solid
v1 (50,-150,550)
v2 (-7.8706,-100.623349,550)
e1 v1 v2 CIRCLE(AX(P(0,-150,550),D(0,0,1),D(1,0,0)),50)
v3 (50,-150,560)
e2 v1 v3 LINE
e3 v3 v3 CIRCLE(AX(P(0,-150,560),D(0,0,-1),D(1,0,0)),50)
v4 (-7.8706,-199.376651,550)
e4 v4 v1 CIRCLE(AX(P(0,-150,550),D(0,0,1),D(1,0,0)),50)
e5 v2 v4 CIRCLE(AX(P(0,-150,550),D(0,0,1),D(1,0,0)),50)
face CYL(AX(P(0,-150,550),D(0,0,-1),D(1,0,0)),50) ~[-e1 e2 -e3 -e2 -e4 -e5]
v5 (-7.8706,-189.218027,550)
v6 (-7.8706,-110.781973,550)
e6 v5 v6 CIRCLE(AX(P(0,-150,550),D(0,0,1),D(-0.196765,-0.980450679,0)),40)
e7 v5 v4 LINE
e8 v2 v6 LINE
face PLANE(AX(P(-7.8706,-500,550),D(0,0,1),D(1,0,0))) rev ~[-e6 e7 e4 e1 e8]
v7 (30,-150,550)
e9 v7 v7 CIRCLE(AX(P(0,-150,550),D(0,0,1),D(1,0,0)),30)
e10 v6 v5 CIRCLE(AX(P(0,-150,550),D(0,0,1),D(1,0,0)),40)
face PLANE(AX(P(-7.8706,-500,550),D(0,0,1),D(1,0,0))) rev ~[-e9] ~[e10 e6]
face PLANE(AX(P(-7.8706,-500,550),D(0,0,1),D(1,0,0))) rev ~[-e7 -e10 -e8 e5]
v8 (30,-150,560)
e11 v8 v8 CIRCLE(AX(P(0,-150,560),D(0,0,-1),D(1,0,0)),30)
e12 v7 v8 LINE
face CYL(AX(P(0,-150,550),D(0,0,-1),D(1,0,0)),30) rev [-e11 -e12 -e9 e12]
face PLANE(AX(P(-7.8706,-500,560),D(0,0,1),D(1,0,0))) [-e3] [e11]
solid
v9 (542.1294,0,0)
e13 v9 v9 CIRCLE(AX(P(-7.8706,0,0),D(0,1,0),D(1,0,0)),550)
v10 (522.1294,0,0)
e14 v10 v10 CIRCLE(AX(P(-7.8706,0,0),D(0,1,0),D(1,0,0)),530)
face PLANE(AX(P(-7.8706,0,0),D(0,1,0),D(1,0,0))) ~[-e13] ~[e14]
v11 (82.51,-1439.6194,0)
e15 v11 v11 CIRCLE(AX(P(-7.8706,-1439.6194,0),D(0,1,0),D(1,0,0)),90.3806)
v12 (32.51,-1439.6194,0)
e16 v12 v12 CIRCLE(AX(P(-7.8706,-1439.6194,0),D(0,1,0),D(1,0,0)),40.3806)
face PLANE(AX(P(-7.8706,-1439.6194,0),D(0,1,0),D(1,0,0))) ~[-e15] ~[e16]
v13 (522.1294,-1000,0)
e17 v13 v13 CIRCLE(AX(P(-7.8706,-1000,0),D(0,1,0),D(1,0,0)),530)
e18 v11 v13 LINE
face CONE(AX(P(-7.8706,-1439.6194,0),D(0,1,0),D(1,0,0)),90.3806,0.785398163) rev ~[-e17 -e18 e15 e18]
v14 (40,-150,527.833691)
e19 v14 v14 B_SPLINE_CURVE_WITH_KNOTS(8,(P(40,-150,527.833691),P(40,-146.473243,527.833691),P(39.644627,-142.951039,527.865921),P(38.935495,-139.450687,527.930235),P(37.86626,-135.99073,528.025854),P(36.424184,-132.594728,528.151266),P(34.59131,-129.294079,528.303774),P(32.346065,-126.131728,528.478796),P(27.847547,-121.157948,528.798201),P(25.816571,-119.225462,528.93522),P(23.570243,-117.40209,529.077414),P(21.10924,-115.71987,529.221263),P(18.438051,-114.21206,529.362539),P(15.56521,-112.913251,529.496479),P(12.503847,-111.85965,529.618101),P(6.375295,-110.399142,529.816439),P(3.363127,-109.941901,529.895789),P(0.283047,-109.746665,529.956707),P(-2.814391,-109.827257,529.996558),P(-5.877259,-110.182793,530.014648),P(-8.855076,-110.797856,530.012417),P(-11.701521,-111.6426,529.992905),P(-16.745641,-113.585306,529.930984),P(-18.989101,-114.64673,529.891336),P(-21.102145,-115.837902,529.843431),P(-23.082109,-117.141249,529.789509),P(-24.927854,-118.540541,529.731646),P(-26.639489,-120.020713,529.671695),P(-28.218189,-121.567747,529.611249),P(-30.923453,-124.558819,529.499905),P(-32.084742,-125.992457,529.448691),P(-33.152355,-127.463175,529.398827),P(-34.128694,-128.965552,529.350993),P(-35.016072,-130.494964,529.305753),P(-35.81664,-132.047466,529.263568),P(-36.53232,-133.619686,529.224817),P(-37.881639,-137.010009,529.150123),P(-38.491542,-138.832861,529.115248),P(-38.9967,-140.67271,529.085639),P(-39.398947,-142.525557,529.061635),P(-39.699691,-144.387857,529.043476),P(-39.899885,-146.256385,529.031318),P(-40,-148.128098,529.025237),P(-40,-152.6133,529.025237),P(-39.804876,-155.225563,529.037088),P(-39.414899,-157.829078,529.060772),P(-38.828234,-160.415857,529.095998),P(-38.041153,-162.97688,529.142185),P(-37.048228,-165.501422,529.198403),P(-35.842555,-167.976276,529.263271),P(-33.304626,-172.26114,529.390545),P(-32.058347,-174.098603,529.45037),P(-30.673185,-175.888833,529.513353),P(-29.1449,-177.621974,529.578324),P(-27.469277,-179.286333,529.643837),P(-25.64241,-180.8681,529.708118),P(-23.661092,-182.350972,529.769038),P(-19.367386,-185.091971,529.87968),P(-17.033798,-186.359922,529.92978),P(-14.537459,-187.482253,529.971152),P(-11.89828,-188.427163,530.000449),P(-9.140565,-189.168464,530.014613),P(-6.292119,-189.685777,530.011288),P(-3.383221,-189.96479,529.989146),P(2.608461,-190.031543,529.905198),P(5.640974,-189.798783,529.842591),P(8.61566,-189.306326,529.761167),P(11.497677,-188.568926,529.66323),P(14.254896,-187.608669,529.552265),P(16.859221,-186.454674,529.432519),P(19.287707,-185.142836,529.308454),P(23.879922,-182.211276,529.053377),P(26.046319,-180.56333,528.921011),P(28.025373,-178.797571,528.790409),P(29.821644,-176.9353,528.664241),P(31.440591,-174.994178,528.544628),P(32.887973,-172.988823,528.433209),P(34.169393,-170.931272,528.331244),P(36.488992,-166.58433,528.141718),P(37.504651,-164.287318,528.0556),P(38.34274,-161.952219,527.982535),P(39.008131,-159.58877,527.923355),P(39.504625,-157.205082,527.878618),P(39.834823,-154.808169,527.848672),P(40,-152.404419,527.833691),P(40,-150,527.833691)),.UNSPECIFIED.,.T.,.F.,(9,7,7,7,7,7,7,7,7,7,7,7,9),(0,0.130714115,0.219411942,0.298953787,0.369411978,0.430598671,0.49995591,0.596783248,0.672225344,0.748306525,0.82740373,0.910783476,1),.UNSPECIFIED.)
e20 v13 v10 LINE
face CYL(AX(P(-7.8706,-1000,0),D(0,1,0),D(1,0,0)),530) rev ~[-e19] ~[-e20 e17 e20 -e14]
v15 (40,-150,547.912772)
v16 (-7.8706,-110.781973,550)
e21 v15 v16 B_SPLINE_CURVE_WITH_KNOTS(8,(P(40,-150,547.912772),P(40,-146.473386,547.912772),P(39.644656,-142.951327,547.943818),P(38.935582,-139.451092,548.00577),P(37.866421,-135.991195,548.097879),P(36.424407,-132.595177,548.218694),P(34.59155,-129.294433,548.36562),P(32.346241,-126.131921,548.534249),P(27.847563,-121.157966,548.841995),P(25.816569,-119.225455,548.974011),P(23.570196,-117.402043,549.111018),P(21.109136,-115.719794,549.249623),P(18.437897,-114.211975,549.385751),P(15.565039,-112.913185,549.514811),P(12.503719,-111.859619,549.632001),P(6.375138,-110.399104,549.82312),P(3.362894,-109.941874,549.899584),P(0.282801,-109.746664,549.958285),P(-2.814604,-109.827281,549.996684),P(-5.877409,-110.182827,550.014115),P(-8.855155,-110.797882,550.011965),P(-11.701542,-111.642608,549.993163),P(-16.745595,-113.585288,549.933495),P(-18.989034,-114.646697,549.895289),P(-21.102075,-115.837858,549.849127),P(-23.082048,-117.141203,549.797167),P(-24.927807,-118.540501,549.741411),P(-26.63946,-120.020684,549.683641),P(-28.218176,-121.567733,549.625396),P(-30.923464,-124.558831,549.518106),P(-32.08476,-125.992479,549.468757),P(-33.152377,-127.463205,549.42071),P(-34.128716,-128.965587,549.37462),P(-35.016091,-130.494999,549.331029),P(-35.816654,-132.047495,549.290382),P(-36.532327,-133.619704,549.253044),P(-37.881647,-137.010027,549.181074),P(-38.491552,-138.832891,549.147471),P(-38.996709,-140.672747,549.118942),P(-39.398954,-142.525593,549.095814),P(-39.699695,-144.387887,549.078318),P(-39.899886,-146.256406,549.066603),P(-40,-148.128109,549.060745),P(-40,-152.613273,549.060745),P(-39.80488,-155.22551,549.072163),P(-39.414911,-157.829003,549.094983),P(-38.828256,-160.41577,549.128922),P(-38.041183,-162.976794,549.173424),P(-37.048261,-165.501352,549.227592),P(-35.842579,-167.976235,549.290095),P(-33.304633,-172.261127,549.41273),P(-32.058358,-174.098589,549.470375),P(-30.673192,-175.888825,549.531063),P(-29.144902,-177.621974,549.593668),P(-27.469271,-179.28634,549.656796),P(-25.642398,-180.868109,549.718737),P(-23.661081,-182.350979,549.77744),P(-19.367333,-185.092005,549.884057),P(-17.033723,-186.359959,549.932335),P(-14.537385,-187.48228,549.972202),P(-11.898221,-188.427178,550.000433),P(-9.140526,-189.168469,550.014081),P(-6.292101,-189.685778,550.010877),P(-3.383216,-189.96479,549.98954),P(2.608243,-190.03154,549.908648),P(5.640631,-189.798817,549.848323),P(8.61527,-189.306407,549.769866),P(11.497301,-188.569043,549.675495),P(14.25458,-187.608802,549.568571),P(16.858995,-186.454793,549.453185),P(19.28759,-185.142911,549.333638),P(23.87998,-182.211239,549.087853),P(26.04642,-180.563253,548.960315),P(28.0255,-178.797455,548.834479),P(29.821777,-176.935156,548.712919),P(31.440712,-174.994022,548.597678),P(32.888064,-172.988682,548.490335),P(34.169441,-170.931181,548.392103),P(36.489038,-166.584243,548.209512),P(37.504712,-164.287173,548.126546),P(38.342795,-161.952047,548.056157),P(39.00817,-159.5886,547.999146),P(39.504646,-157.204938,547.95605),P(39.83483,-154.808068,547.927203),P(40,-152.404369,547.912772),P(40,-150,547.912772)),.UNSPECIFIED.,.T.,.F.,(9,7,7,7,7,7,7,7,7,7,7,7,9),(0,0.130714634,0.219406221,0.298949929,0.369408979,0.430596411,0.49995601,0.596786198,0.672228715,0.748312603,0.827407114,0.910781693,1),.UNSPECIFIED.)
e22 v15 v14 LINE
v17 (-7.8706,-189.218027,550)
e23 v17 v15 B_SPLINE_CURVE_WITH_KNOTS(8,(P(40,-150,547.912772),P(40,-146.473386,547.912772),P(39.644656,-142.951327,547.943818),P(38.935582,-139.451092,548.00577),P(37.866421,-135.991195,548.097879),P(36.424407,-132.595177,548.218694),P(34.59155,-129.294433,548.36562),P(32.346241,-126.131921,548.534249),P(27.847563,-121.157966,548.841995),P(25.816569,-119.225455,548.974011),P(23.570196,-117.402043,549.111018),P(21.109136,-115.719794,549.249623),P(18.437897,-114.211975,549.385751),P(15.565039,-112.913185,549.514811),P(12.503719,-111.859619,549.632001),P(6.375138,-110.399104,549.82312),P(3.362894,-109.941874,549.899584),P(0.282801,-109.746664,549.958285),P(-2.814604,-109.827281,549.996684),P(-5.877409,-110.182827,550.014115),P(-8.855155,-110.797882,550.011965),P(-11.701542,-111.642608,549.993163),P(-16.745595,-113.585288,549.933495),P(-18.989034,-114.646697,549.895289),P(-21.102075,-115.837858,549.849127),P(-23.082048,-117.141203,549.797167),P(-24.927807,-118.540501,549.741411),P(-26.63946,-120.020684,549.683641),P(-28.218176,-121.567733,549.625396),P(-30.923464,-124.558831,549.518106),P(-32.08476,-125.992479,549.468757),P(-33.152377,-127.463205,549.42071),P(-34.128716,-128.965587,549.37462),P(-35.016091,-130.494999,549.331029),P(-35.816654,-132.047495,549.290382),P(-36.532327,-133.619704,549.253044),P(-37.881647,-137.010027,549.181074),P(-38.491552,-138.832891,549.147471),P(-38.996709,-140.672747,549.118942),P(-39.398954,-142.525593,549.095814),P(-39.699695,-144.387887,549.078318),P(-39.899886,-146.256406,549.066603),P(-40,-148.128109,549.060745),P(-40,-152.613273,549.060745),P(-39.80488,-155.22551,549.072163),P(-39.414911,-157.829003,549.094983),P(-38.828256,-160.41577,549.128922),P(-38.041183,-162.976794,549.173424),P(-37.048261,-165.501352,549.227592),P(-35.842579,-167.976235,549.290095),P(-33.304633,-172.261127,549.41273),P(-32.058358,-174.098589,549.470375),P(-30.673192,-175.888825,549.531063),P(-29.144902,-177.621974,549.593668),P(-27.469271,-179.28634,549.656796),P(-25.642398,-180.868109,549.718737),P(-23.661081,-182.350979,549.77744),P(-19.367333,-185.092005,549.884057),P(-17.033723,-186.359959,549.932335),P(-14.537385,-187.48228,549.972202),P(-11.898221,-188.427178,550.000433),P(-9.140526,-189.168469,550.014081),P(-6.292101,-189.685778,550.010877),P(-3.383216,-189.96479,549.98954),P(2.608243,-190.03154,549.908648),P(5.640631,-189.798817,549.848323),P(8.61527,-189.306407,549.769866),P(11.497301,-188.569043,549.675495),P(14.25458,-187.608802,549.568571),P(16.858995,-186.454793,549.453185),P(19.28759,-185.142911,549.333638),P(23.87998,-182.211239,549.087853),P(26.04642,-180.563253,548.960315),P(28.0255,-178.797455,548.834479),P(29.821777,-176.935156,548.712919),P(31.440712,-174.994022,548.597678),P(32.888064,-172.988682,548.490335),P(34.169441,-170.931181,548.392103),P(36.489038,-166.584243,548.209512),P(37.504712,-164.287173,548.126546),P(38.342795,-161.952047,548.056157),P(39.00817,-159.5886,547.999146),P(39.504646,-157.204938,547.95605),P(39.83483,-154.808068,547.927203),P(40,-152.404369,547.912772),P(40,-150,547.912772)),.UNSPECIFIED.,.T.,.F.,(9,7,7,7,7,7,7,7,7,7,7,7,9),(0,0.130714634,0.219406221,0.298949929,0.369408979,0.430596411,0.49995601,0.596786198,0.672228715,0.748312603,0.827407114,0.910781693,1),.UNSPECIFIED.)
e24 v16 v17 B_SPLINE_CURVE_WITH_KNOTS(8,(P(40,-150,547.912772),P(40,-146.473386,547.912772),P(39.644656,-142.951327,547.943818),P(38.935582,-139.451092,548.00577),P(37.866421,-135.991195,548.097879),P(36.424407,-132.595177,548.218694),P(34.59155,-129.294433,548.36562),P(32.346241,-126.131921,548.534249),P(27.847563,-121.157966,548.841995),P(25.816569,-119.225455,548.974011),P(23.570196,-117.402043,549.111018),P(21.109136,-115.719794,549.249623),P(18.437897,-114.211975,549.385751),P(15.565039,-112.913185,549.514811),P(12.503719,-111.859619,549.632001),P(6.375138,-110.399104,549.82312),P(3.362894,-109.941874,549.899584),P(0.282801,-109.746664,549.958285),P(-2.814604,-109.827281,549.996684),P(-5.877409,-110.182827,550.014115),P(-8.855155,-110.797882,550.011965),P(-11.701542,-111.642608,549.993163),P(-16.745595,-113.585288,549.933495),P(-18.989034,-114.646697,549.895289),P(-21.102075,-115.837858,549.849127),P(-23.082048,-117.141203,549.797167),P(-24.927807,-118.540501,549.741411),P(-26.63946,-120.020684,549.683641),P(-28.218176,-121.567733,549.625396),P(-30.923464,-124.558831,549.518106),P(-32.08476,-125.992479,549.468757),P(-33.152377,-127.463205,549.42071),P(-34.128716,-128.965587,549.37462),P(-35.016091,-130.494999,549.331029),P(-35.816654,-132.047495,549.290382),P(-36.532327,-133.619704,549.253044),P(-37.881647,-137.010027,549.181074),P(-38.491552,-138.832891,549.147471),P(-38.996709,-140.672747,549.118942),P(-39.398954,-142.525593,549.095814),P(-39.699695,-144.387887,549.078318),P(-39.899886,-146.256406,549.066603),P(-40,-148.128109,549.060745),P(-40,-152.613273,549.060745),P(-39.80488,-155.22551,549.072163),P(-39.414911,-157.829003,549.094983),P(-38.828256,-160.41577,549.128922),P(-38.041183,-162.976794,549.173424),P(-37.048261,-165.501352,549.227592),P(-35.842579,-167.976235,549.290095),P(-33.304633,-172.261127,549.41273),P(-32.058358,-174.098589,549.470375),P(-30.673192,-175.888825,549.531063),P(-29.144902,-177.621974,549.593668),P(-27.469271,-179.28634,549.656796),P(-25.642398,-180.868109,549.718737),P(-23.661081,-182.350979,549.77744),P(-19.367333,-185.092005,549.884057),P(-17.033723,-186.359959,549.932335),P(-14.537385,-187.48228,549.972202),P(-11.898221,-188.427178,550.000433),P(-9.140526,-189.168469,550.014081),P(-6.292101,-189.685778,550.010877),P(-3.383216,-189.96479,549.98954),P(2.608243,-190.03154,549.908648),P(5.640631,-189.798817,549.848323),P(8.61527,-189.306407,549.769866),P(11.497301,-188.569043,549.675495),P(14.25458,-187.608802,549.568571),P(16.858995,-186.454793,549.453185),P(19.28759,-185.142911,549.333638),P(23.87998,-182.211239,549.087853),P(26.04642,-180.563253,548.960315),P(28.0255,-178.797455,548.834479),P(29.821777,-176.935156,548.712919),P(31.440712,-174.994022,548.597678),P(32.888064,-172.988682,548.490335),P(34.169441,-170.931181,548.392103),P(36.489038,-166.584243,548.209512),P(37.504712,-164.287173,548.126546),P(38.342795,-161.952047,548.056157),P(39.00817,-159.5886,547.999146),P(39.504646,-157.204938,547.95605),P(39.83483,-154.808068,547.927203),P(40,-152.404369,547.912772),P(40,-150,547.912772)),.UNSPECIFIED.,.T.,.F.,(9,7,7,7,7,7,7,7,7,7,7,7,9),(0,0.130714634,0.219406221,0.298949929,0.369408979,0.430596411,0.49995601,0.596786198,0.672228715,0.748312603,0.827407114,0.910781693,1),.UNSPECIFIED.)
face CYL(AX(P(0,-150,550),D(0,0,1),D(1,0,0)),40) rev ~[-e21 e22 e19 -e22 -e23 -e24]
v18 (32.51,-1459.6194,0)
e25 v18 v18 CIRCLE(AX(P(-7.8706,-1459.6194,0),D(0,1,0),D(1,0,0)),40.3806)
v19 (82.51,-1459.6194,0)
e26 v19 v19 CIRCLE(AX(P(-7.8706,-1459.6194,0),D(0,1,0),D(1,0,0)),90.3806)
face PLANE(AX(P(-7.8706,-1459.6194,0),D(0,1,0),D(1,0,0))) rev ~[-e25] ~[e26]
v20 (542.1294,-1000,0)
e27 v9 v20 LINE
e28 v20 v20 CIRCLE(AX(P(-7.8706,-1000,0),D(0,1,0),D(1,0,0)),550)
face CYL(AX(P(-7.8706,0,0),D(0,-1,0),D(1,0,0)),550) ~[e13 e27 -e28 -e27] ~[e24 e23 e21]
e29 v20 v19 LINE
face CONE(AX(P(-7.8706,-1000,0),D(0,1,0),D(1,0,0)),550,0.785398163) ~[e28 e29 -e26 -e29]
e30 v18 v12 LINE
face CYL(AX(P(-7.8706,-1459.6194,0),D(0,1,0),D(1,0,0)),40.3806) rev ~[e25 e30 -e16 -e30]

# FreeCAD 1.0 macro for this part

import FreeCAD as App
import Part
import Sketcher

V = App.Vector
Q = App.Units.Quantity

doc = App.newDocument("Part")
params = doc.addObject("Spreadsheet::Sheet", "Params")
for row, (alias, value) in enumerate([
    ("sketch1_width", "20 mm"),
    ("sketch1_width2", "50 mm"),
    ("sketch1_height", "1000 mm"),
    ("sketch1_length", "650 mm"),
    ("revolution_angle", "360 deg"),
    ("sketch2_diameter", "100 mm"),
    ("sketch2_diameter2", "60 mm"),
    ("pad1_length", "10 mm"),
    ("sketch3_diameter", "80 mm"),
    ("pocket1_length", "50 mm"),
], start=1):
    params.set(f"A{row}", alias)
    params.set(f"B{row}", "=" + value)
    params.setAlias(f"B{row}", alias)

body = doc.addObject("PartDesign::Body", "Body")
body.AllowCompound = True

# Sketch on XY plane
sketch1 = body.newObject("Sketcher::SketchObject", "Sketch")
sketch1.AttachmentSupport = (doc.getObject("XY_Plane"), [""])
sketch1.MapMode = "FlatFace"
sketch1.addGeometry(Part.LineSegment(V(542.1294, -1000, 0), V(542.1294, 0, 0)), False)
sketch1.addGeometry(Part.LineSegment(V(542.1294, 0, 0), V(522.1294, 0, 0)), False)
sketch1.addGeometry(Part.LineSegment(V(522.1294, 0, 0), V(522.1294, -1000, 0)), False)
sketch1.addGeometry(Part.LineSegment(V(522.1294, -1000, 0), V(82.51, -1439.6194, 0)), False)
sketch1.addGeometry(Part.LineSegment(V(82.51, -1439.6194, 0), V(32.51, -1439.6194, 0)), False)
sketch1.addGeometry(Part.LineSegment(V(32.51, -1439.6194, 0), V(32.51, -1459.6194, 0)), False)
sketch1.addGeometry(Part.LineSegment(V(32.51, -1459.6194, 0), V(82.51, -1459.6194, 0)), False)
sketch1.addGeometry(Part.LineSegment(V(82.51, -1459.6194, 0), V(542.1294, -1000, 0)), False)
sketch1.addGeometry(Part.LineSegment(V(-7.8706, -1459.6194, 0), V(-7.8706, 0, 0)), True)  # axis
sketch1.addConstraint(Sketcher.Constraint("Coincident", 0, 2, 1, 1))
sketch1.addConstraint(Sketcher.Constraint("Coincident", 1, 2, 2, 1))
sketch1.addConstraint(Sketcher.Constraint("Coincident", 2, 2, 3, 1))
sketch1.addConstraint(Sketcher.Constraint("Coincident", 3, 2, 4, 1))
sketch1.addConstraint(Sketcher.Constraint("Coincident", 4, 2, 5, 1))
sketch1.addConstraint(Sketcher.Constraint("Coincident", 5, 2, 6, 1))
sketch1.addConstraint(Sketcher.Constraint("Coincident", 6, 2, 7, 1))
sketch1.addConstraint(Sketcher.Constraint("Coincident", 7, 2, 0, 1))
sketch1.addConstraint(Sketcher.Constraint("Vertical", 0))
sketch1.addConstraint(Sketcher.Constraint("Horizontal", 1))
sketch1.addConstraint(Sketcher.Constraint("Vertical", 2))
sketch1.addConstraint(Sketcher.Constraint("Horizontal", 4))
sketch1.addConstraint(Sketcher.Constraint("Vertical", 5))
sketch1.addConstraint(Sketcher.Constraint("Horizontal", 6))
sketch1.addConstraint(Sketcher.Constraint("Vertical", 8))
sketch1.addConstraint(Sketcher.Constraint("PointOnObject", 0, 2, -1))
sketch1.addConstraint(Sketcher.Constraint("PointOnObject", 8, 2, -1))
sketch1.addConstraint(Sketcher.Constraint("Parallel", 3, 7))
sketch1.addConstraint(Sketcher.Constraint("Horizontal", 2, 2, 7, 2))
sketch1.addConstraint(Sketcher.Constraint("Horizontal", 6, 2, 8, 1))
sketch1.addConstraint(Sketcher.Constraint("Vertical", 3, 2, 6, 2))
sketch1.addConstraint(Sketcher.Constraint("Equal", 1, 5))
sketch1.addConstraint(Sketcher.Constraint("DistanceX", 1, 2, 1, 1, Q("20 mm")))
sketch1.addConstraint(Sketcher.Constraint("DistanceX", 4, 2, 4, 1, Q("50 mm")))
sketch1.addConstraint(Sketcher.Constraint("DistanceY", 0, 1, 0, 2, Q("1000 mm")))
sketch1.addConstraint(Sketcher.Constraint("Distance", 7, Q("650 mm")))
sketch1.addConstraint(Sketcher.Constraint("DistanceX", 8, 2, 0, 2, Q("550 mm")))
sketch1.addConstraint(Sketcher.Constraint("DistanceX", -1, 1, 3, 2, Q("82.51 mm")))
sketch1.setExpression("Constraints[22]", "Params.sketch1_width")
sketch1.setExpression("Constraints[23]", "Params.sketch1_width2")
sketch1.setExpression("Constraints[24]", "Params.sketch1_height")
sketch1.setExpression("Constraints[25]", "Params.sketch1_length")
revolution = body.newObject("PartDesign::Revolution", "Revolution")
revolution.Profile = sketch1
revolution.ReferenceAxis = (sketch1, ["Axis0"])
revolution.setExpression("Angle", "Params.revolution_angle")

# Sketch on XY plane
sketch2 = body.newObject("Sketcher::SketchObject", "Sketch001")
sketch2.AttachmentSupport = (doc.getObject("XY_Plane"), [""])
sketch2.MapMode = "FlatFace"
sketch2.AttachmentOffset = App.Placement(V(0, 0, 550), App.Rotation())
sketch2.addGeometry(Part.Circle(V(0, -150, 0), V(0, 0, 1), 50), False)
sketch2.addGeometry(Part.Circle(V(0, -150, 0), V(0, 0, 1), 30), False)
sketch2.addConstraint(Sketcher.Constraint("Coincident", 1, 3, 0, 3))
sketch2.addConstraint(Sketcher.Constraint("PointOnObject", 0, 3, -2))
sketch2.addConstraint(Sketcher.Constraint("Diameter", 0, Q("100 mm")))
sketch2.addConstraint(Sketcher.Constraint("Diameter", 1, Q("60 mm")))
sketch2.addConstraint(Sketcher.Constraint("DistanceY", 0, 3, -1, 1, Q("150 mm")))
sketch2.setExpression("Constraints[2]", "Params.sketch2_diameter")
sketch2.setExpression("Constraints[3]", "Params.sketch2_diameter2")
pad1 = body.newObject("PartDesign::Pad", "Pad")
pad1.Profile = sketch2
pad1.setExpression("Length", "Params.pad1_length")

# Sketch on XY plane
sketch3 = body.newObject("Sketcher::SketchObject", "Sketch002")
sketch3.AttachmentSupport = (doc.getObject("XY_Plane"), [""])
sketch3.MapMode = "FlatFace"
sketch3.AttachmentOffset = App.Placement(V(0, 0, 550), App.Rotation())
sketch3.addGeometry(Part.Circle(V(0, -150, 0), V(0, 0, 1), 40), False)
sketch3.addConstraint(Sketcher.Constraint("PointOnObject", 0, 3, -2))
sketch3.addConstraint(Sketcher.Constraint("Diameter", 0, Q("80 mm")))
sketch3.addConstraint(Sketcher.Constraint("DistanceY", 0, 3, -1, 1, Q("150 mm")))
sketch3.setExpression("Constraints[1]", "Params.sketch3_diameter")
pocket1 = body.newObject("PartDesign::Pocket", "Pocket")
pocket1.Profile = sketch3
pocket1.setExpression("Length", "Params.pocket1_length")

doc.recompute()
